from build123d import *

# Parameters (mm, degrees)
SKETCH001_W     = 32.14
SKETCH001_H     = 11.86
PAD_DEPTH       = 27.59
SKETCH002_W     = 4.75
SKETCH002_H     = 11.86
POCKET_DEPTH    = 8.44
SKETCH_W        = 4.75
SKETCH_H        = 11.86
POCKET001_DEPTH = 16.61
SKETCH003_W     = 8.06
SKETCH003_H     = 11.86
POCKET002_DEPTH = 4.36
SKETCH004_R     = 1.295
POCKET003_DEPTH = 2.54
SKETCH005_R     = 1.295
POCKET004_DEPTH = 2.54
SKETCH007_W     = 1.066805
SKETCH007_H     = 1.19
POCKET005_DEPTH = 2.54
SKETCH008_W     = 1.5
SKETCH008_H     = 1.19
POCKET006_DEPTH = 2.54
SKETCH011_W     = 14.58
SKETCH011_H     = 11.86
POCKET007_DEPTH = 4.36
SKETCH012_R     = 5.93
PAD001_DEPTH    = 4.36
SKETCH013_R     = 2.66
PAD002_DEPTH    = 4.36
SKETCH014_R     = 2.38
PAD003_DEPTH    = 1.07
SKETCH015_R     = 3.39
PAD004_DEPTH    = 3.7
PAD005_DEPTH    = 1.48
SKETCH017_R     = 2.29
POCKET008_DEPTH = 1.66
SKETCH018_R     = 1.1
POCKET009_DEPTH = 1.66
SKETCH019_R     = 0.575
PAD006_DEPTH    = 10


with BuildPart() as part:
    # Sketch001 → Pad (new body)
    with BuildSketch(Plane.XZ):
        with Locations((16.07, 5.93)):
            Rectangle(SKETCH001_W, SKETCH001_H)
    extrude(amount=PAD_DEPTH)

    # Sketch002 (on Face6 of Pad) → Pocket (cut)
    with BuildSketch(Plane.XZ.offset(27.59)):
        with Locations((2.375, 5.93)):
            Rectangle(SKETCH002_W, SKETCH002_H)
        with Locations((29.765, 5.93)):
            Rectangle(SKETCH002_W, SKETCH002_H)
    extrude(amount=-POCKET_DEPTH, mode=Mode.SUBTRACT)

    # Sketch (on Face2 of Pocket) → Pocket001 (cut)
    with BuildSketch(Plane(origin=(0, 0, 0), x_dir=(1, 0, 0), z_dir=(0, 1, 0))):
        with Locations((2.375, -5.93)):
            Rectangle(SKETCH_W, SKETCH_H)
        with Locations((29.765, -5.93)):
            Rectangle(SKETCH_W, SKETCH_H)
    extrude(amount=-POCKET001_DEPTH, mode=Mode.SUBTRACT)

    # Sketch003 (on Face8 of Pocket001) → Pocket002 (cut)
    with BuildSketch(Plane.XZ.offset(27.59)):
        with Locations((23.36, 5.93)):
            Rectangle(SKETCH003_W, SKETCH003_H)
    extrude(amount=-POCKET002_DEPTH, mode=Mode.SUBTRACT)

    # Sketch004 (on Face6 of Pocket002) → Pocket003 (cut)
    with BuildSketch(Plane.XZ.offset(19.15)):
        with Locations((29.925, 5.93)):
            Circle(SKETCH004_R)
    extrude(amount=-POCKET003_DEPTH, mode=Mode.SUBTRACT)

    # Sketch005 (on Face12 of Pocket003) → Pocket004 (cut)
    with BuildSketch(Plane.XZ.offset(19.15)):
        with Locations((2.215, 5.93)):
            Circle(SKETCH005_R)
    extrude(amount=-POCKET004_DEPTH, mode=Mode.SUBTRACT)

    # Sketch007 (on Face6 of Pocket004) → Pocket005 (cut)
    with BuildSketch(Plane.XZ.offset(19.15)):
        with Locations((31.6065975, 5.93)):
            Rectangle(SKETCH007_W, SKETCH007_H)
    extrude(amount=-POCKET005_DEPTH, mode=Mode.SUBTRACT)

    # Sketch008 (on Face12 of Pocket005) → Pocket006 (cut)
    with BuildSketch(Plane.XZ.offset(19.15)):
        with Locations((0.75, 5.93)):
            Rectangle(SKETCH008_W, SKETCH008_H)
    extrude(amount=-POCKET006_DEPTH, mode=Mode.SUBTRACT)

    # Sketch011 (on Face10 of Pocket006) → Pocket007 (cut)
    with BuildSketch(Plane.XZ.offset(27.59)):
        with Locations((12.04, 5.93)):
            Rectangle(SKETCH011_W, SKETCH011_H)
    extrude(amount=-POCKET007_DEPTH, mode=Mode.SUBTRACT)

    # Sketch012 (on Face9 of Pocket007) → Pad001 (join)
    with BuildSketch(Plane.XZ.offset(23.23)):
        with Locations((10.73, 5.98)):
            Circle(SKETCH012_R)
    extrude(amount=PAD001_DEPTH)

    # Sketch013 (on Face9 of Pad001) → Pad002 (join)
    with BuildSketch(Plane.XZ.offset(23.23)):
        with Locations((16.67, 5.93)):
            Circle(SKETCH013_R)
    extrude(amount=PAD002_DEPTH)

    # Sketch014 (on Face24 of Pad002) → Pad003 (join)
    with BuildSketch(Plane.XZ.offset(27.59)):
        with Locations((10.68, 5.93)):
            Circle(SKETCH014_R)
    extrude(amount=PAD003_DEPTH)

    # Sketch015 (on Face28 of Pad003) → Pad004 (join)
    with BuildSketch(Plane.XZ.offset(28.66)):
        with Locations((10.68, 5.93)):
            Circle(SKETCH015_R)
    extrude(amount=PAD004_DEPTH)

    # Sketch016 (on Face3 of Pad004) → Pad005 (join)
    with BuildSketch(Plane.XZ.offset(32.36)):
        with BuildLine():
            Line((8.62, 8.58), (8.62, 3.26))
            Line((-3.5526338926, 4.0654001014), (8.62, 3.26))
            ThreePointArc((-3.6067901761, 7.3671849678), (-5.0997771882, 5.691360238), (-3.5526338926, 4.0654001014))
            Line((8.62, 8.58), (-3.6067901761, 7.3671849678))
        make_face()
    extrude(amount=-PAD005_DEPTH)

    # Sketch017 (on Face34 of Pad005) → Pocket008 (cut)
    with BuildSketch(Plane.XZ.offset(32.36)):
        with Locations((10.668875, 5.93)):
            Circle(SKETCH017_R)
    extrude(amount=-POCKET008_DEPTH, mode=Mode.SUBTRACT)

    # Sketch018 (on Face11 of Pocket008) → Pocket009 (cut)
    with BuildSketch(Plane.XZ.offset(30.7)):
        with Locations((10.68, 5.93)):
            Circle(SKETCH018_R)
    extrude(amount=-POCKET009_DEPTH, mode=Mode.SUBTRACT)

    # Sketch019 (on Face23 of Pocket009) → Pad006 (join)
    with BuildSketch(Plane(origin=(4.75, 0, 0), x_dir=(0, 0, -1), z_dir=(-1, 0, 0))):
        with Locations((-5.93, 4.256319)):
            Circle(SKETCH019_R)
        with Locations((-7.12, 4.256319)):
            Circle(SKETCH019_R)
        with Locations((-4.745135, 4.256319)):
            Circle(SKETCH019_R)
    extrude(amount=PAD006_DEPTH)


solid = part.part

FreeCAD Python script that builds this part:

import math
import FreeCAD as App
import Part
import Sketcher
Q = App.Units.Quantity


def add_polygon(sketch, points):
    """Adds a closed chain of lines whose ends are joined by coincident constraints."""
    first, n = sketch.GeometryCount, len(points)
    for a, b in zip(points, points[1:] + points[:1]):
        sketch.addGeometry(Part.LineSegment(App.Vector(*a, 0), App.Vector(*b, 0)), False)
    for i in range(n):
        sketch.addConstraint(Sketcher.Constraint("Coincident", first + i, 2, first + (i + 1) % n, 1))

doc = App.newDocument("Part")
params = doc.addObject("Spreadsheet::Sheet", "Params")
for row, (alias, value) in enumerate([
    ("sketch1_width", "32.14 mm"),
    ("sketch1_height", "11.86 mm"),
    ("pad1_length", "27.59 mm"),
    ("sketch2_width", "4.75 mm"),
    ("sketch2_height", "11.86 mm"),
    ("pocket1_length", "8.44 mm"),
    ("sketch3_width", "4.75 mm"),
    ("sketch3_height", "11.86 mm"),
    ("pocket2_length", "16.61 mm"),
    ("sketch4_width", "8.06 mm"),
    ("sketch4_height", "11.86 mm"),
    ("pocket3_length", "4.36 mm"),
    ("sketch5_diameter", "2.59 mm"),
    ("pocket4_length", "2.54 mm"),
    ("sketch6_diameter", "2.59 mm"),
    ("pocket5_length", "2.54 mm"),
    ("sketch7_height", "1.19 mm"),
    ("pocket6_length", "2.54 mm"),
    ("sketch8_width", "1.5 mm"),
    ("sketch8_height", "1.19 mm"),
    ("pocket7_length", "2.54 mm"),
    ("sketch9_width", "14.58 mm"),
    ("sketch9_height", "11.86 mm"),
    ("pocket8_length", "4.36 mm"),
    ("sketch10_diameter", "11.86 mm"),
    ("pad2_length", "4.36 mm"),
    ("sketch11_diameter", "5.32 mm"),
    ("pad3_length", "4.36 mm"),
    ("sketch12_diameter", "4.76 mm"),
    ("pad4_length", "1.07 mm"),
    ("sketch13_diameter", "6.78 mm"),
    ("pad5_length", "3.7 mm"),
    ("sketch14_height", "5.32 mm"),
    ("pad6_length", "1.48 mm"),
    ("sketch15_diameter", "4.58 mm"),
    ("pocket9_length", "1.66 mm"),
    ("sketch16_diameter", "2.2 mm"),
    ("pocket10_length", "1.66 mm"),
    ("sketch17_diameter", "1.15 mm"),
    ("pad7_length", "10 mm"),
], start=1):
    params.set(f"A{row}", alias)
    params.set(f"B{row}", "=" + value)
    params.setAlias(f"B{row}", alias)

body = doc.addObject("PartDesign::Body", "Body")

sketch1 = body.newObject("Sketcher::SketchObject", "Sketch")
sketch1.AttachmentSupport = (doc.getObject("XZ_Plane"), [""])
sketch1.MapMode = "FlatFace"
add_polygon(sketch1, [(0, 12), (0, 0), (32, 0), (32, 12)])
sketch1.addConstraint([
    Sketcher.Constraint("Vertical", 0),
    Sketcher.Constraint("Horizontal", 1),
    Sketcher.Constraint("Vertical", 2),
    Sketcher.Constraint("Horizontal", 3),
    Sketcher.Constraint("Coincident", 0, 2, -1, 1),
    Sketcher.Constraint("DistanceX", 1, 1, 1, 2, Q("32.14 mm")),
    Sketcher.Constraint("DistanceY", 0, 2, 0, 1, Q("11.86 mm")),
])
sketch1.setExpression("Constraints[9]", "Params.sketch1_width")
sketch1.setExpression("Constraints[10]", "Params.sketch1_height")
pad1 = body.newObject("PartDesign::Pad", "Pad")
pad1.Profile = sketch1
pad1.setExpression("Length", "Params.pad1_length")

sketch2 = body.newObject("Sketcher::SketchObject", "Sketch001")
sketch2.AttachmentSupport = (doc.getObject("XZ_Plane"), [""])
sketch2.MapMode = "FlatFace"
sketch2.AttachmentOffset = App.Placement(App.Vector(0, 0, 27.59), App.Rotation())
add_polygon(sketch2, [(0, 11.9), (0, 0), (4.8, 0), (4.8, 11.9)])
add_polygon(sketch2, [(27.4, 11.9), (27.4, 0), (32.1, 0), (32.1, 11.9)])
sketch2.addConstraint([
    Sketcher.Constraint("Vertical", 0),
    Sketcher.Constraint("Horizontal", 1),
    Sketcher.Constraint("Vertical", 2),
    Sketcher.Constraint("Horizontal", 3),
    Sketcher.Constraint("Vertical", 4),
    Sketcher.Constraint("Horizontal", 5),
    Sketcher.Constraint("Vertical", 6),
    Sketcher.Constraint("Horizontal", 7),
    Sketcher.Constraint("Coincident", 0, 2, -1, 1),
    Sketcher.Constraint("PointOnObject", 4, 2, -1),
    Sketcher.Constraint("Horizontal", 3, 2, 6, 2),
    Sketcher.Constraint("Equal", 3, 5),
    Sketcher.Constraint("DistanceX", 1, 1, 1, 2, Q("4.75 mm")),
    Sketcher.Constraint("DistanceY", 0, 2, 0, 1, Q("11.86 mm")),
    Sketcher.Constraint("DistanceX", -1, 1, 4, 2, Q("27.39 mm")),
])
sketch2.setExpression("Constraints[20]", "Params.sketch2_width")
sketch2.setExpression("Constraints[21]", "Params.sketch2_height")
pocket1 = body.newObject("PartDesign::Pocket", "Pocket")
pocket1.Profile = sketch2
pocket1.setExpression("Length", "Params.pocket1_length")

sketch3 = body.newObject("Sketcher::SketchObject", "Sketch002")
sketch3.AttachmentSupport = (doc.getObject("XZ_Plane"), [""])
sketch3.MapMode = "FlatFace"
add_polygon(sketch3, [(0, 0), (0, 11.9), (4.8, 11.9), (4.8, 0)])
add_polygon(sketch3, [(27.4, 0), (27.4, 11.9), (32.1, 11.9), (32.1, 0)])
sketch3.addConstraint([
    Sketcher.Constraint("Vertical", 0),
    Sketcher.Constraint("Horizontal", 1),
    Sketcher.Constraint("Vertical", 2),
    Sketcher.Constraint("Horizontal", 3),
    Sketcher.Constraint("Vertical", 4),
    Sketcher.Constraint("Horizontal", 5),
    Sketcher.Constraint("Vertical", 6),
    Sketcher.Constraint("Horizontal", 7),
    Sketcher.Constraint("Coincident", 3, 2, -1, 1),
    Sketcher.Constraint("PointOnObject", 6, 2, -1),
    Sketcher.Constraint("Horizontal", 1, 2, 4, 2),
    Sketcher.Constraint("Equal", 3, 5),
    Sketcher.Constraint("DistanceX", 1, 1, 1, 2, Q("4.75 mm")),
    Sketcher.Constraint("DistanceY", 0, 1, 0, 2, Q("11.86 mm")),
    Sketcher.Constraint("DistanceX", -1, 1, 4, 2, Q("27.39 mm")),
])
sketch3.setExpression("Constraints[20]", "Params.sketch3_width")
sketch3.setExpression("Constraints[21]", "Params.sketch3_height")
pocket2 = body.newObject("PartDesign::Pocket", "Pocket001")
pocket2.Profile = sketch3
pocket2.setExpression("Length", "Params.pocket2_length")
pocket2.Reversed = True

sketch4 = body.newObject("Sketcher::SketchObject", "Sketch003")
sketch4.AttachmentSupport = (doc.getObject("XZ_Plane"), [""])
sketch4.MapMode = "FlatFace"
sketch4.AttachmentOffset = App.Placement(App.Vector(0, 0, 27.59), App.Rotation())
add_polygon(sketch4, [(19, 12), (19, 0), (27, 0), (27, 12)])
sketch4.addConstraint([
    Sketcher.Constraint("Vertical", 0),
    Sketcher.Constraint("Horizontal", 1),
    Sketcher.Constraint("Vertical", 2),
    Sketcher.Constraint("Horizontal", 3),
    Sketcher.Constraint("PointOnObject", 0, 2, -1),
    Sketcher.Constraint("DistanceX", 1, 1, 1, 2, Q("8.06 mm")),
    Sketcher.Constraint("DistanceY", 0, 2, 0, 1, Q("11.86 mm")),
    Sketcher.Constraint("DistanceX", -1, 1, 0, 2, Q("19.33 mm")),
])
sketch4.setExpression("Constraints[9]", "Params.sketch4_width")
sketch4.setExpression("Constraints[10]", "Params.sketch4_height")
pocket3 = body.newObject("PartDesign::Pocket", "Pocket002")
pocket3.Profile = sketch4
pocket3.setExpression("Length", "Params.pocket3_length")

sketch5 = body.newObject("Sketcher::SketchObject", "Sketch004")
sketch5.AttachmentSupport = (doc.getObject("XZ_Plane"), [""])
sketch5.MapMode = "FlatFace"
sketch5.AttachmentOffset = App.Placement(App.Vector(0, 0, 19.15), App.Rotation())
sketch5.addGeometry(Part.Circle(App.Vector(29.9, 5.9, 0), App.Vector(0, 0, 1), 1.3), False)
sketch5.addConstraint([
    Sketcher.Constraint("Diameter", 0, Q("2.59 mm")),
    Sketcher.Constraint("DistanceY", -1, 1, 0, 3, Q("5.93 mm")),
    Sketcher.Constraint("DistanceX", -1, 1, 0, 3, Q("29.925 mm")),
])
sketch5.setExpression("Constraints[0]", "Params.sketch5_diameter")
pocket4 = body.newObject("PartDesign::Pocket", "Pocket003")
pocket4.Profile = sketch5
pocket4.setExpression("Length", "Params.pocket4_length")

sketch6 = body.newObject("Sketcher::SketchObject", "Sketch005")
sketch6.AttachmentSupport = (doc.getObject("XZ_Plane"), [""])
sketch6.MapMode = "FlatFace"
sketch6.AttachmentOffset = App.Placement(App.Vector(0, 0, 19.15), App.Rotation())
sketch6.addGeometry(Part.Circle(App.Vector(2.2, 5.9, 0), App.Vector(0, 0, 1), 1.3), False)
sketch6.addConstraint([
    Sketcher.Constraint("Diameter", 0, Q("2.59 mm")),
    Sketcher.Constraint("DistanceY", -1, 1, 0, 3, Q("5.93 mm")),
    Sketcher.Constraint("DistanceX", -1, 1, 0, 3, Q("2.215 mm")),
])
sketch6.setExpression("Constraints[0]", "Params.sketch6_diameter")
pocket5 = body.newObject("PartDesign::Pocket", "Pocket004")
pocket5.Profile = sketch6
pocket5.setExpression("Length", "Params.pocket5_length")

sketch7 = body.newObject("Sketcher::SketchObject", "Sketch006")
sketch7.AttachmentSupport = (doc.getObject("XZ_Plane"), [""])
sketch7.MapMode = "FlatFace"
sketch7.AttachmentOffset = App.Placement(App.Vector(0, 0, 19.15), App.Rotation())
add_polygon(sketch7, [(31.1, 6.5), (31.1, 5.3), (32.1, 5.3), (32.1, 6.5)])
sketch7.addConstraint([
    Sketcher.Constraint("Vertical", 0),
    Sketcher.Constraint("Horizontal", 1),
    Sketcher.Constraint("Vertical", 2),
    Sketcher.Constraint("Horizontal", 3),
    Sketcher.Constraint("DistanceY", 0, 2, 0, 1, Q("1.19 mm")),
    Sketcher.Constraint("DistanceX", -1, 1, 1, 2, Q("32.14 mm")),
    Sketcher.Constraint("DistanceY", -1, 1, 0, 2, Q("5.335 mm")),
    Sketcher.Constraint("DistanceX", 1, 1, 1, 2, Q("1.066805 mm")),
])
sketch7.setExpression("Constraints[8]", "Params.sketch7_height")
pocket6 = body.newObject("PartDesign::Pocket", "Pocket005")
pocket6.Profile = sketch7
pocket6.setExpression("Length", "Params.pocket6_length")

sketch8 = body.newObject("Sketcher::SketchObject", "Sketch007")
sketch8.AttachmentSupport = (doc.getObject("XZ_Plane"), [""])
sketch8.MapMode = "FlatFace"
sketch8.AttachmentOffset = App.Placement(App.Vector(0, 0, 19.15), App.Rotation())
add_polygon(sketch8, [(0, 6.5), (0, 5.3), (1.5, 5.3), (1.5, 6.5)])
sketch8.addConstraint([
    Sketcher.Constraint("Vertical", 0),
    Sketcher.Constraint("Horizontal", 1),
    Sketcher.Constraint("Vertical", 2),
    Sketcher.Constraint("Horizontal", 3),
    Sketcher.Constraint("PointOnObject", 0, 2, -2),
    Sketcher.Constraint("DistanceX", 1, 1, 1, 2, Q("1.5 mm")),
    Sketcher.Constraint("DistanceY", 0, 2, 0, 1, Q("1.19 mm")),
    Sketcher.Constraint("DistanceY", -1, 1, 0, 2, Q("5.335 mm")),
])
sketch8.setExpression("Constraints[9]", "Params.sketch8_width")
sketch8.setExpression("Constraints[10]", "Params.sketch8_height")
pocket7 = body.newObject("PartDesign::Pocket", "Pocket006")
pocket7.Profile = sketch8
pocket7.setExpression("Length", "Params.pocket7_length")

sketch9 = body.newObject("Sketcher::SketchObject", "Sketch008")
sketch9.AttachmentSupport = (doc.getObject("XZ_Plane"), [""])
sketch9.MapMode = "FlatFace"
sketch9.AttachmentOffset = App.Placement(App.Vector(0, 0, 27.59), App.Rotation())
add_polygon(sketch9, [(5, 12), (5, 0), (19, 0), (19, 12)])
sketch9.addConstraint([
    Sketcher.Constraint("Vertical", 0),
    Sketcher.Constraint("Horizontal", 1),
    Sketcher.Constraint("Vertical", 2),
    Sketcher.Constraint("Horizontal", 3),
    Sketcher.Constraint("PointOnObject", 0, 2, -1),
    Sketcher.Constraint("DistanceX", 1, 1, 1, 2, Q("14.58 mm")),
    Sketcher.Constraint("DistanceY", 0, 2, 0, 1, Q("11.86 mm")),
    Sketcher.Constraint("DistanceX", -1, 1, 0, 2, Q("4.75 mm")),
])
sketch9.setExpression("Constraints[9]", "Params.sketch9_width")
sketch9.setExpression("Constraints[10]", "Params.sketch9_height")
pocket8 = body.newObject("PartDesign::Pocket", "Pocket007")
pocket8.Profile = sketch9
pocket8.setExpression("Length", "Params.pocket8_length")

sketch10 = body.newObject("Sketcher::SketchObject", "Sketch009")
sketch10.AttachmentSupport = (doc.getObject("XZ_Plane"), [""])
sketch10.MapMode = "FlatFace"
sketch10.AttachmentOffset = App.Placement(App.Vector(0, 0, 23.23), App.Rotation())
sketch10.addGeometry(Part.Circle(App.Vector(11, 6, 0), App.Vector(0, 0, 1), 6), False)
sketch10.addConstraint([
    Sketcher.Constraint("Diameter", 0, Q("11.86 mm")),
    Sketcher.Constraint("DistanceX", -1, 1, 0, 3, Q("10.73 mm")),
    Sketcher.Constraint("DistanceY", -1, 1, 0, 3, Q("5.98 mm")),
])
sketch10.setExpression("Constraints[0]", "Params.sketch10_diameter")
pad2 = body.newObject("PartDesign::Pad", "Pad001")
pad2.Profile = sketch10
pad2.setExpression("Length", "Params.pad2_length")

sketch11 = body.newObject("Sketcher::SketchObject", "Sketch010")
sketch11.AttachmentSupport = (doc.getObject("XZ_Plane"), [""])
sketch11.MapMode = "FlatFace"
sketch11.AttachmentOffset = App.Placement(App.Vector(0, 0, 23.23), App.Rotation())
sketch11.addGeometry(Part.Circle(App.Vector(16.7, 5.9, 0), App.Vector(0, 0, 1), 2.7), False)
sketch11.addConstraint([
    Sketcher.Constraint("Diameter", 0, Q("5.32 mm")),
    Sketcher.Constraint("DistanceX", -1, 1, 0, 3, Q("16.67 mm")),
    Sketcher.Constraint("DistanceY", -1, 1, 0, 3, Q("5.93 mm")),
])
sketch11.setExpression("Constraints[0]", "Params.sketch11_diameter")
pad3 = body.newObject("PartDesign::Pad", "Pad002")
pad3.Profile = sketch11
pad3.setExpression("Length", "Params.pad3_length")

sketch12 = body.newObject("Sketcher::SketchObject", "Sketch011")
sketch12.AttachmentSupport = (doc.getObject("XZ_Plane"), [""])
sketch12.MapMode = "FlatFace"
sketch12.AttachmentOffset = App.Placement(App.Vector(0, 0, 27.59), App.Rotation())
sketch12.addGeometry(Part.Circle(App.Vector(10.7, 5.9, 0), App.Vector(0, 0, 1), 2.4), False)
sketch12.addConstraint([
    Sketcher.Constraint("Diameter", 0, Q("4.76 mm")),
    Sketcher.Constraint("DistanceX", -1, 1, 0, 3, Q("10.68 mm")),
    Sketcher.Constraint("DistanceY", -1, 1, 0, 3, Q("5.93 mm")),
])
sketch12.setExpression("Constraints[0]", "Params.sketch12_diameter")
pad4 = body.newObject("PartDesign::Pad", "Pad003")
pad4.Profile = sketch12
pad4.setExpression("Length", "Params.pad4_length")

sketch13 = body.newObject("Sketcher::SketchObject", "Sketch012")
sketch13.AttachmentSupport = (doc.getObject("XZ_Plane"), [""])
sketch13.MapMode = "FlatFace"
sketch13.AttachmentOffset = App.Placement(App.Vector(0, 0, 28.66), App.Rotation())
sketch13.addGeometry(Part.Circle(App.Vector(10.7, 5.9, 0), App.Vector(0, 0, 1), 3.4), False)
sketch13.addConstraint([
    Sketcher.Constraint("Diameter", 0, Q("6.78 mm")),
    Sketcher.Constraint("DistanceX", -1, 1, 0, 3, Q("10.68 mm")),
    Sketcher.Constraint("DistanceY", -1, 1, 0, 3, Q("5.93 mm")),
])
sketch13.setExpression("Constraints[0]", "Params.sketch13_diameter")
pad5 = body.newObject("PartDesign::Pad", "Pad004")
pad5.Profile = sketch13
pad5.setExpression("Length", "Params.pad5_length")

sketch14 = body.newObject("Sketcher::SketchObject", "Sketch013")
sketch14.AttachmentSupport = (doc.getObject("XZ_Plane"), [""])
sketch14.MapMode = "FlatFace"
sketch14.AttachmentOffset = App.Placement(App.Vector(0, 0, 32.36), App.Rotation())
sketch14.addGeometry([
    Part.LineSegment(App.Vector(8.6, 3.3, 0), App.Vector(8.6, 8.6, 0)),
    Part.LineSegment(App.Vector(8.6, 8.6, 0), App.Vector(-3.6, 7.4, 0)),
    Part.ArcOfCircle(Part.Circle(App.Vector(-3.4, 5.7, 0), App.Vector(0, 0, 1), 1.7), math.radians(96), math.radians(266)),
    Part.LineSegment(App.Vector(-3.6, 4.1, 0), App.Vector(8.6, 3.3, 0)),
], False)
sketch14.addConstraint([
    Sketcher.Constraint("Coincident", 0, 2, 1, 1),
    Sketcher.Constraint("Tangent", 1, 2, 2, 1),
    Sketcher.Constraint("Tangent", 2, 2, 3, 1),
    Sketcher.Constraint("Coincident", 3, 2, 0, 1),
    Sketcher.Constraint("Vertical", 0),
    Sketcher.Constraint("DistanceY", 0, 1, 0, 2, Q("5.32 mm")),
    Sketcher.Constraint("DistanceX", -1, 1, 0, 2, Q("8.62 mm")),
    Sketcher.Constraint("DistanceY", -1, 1, 0, 2, Q("8.58 mm")),
    Sketcher.Constraint("Radius", 2, Q("1.656745 mm")),
    Sketcher.Constraint("DistanceY", -1, 1, 2, 2, Q("4.0654 mm")),
    Sketcher.Constraint("Distance", 3, Q("12.199249 mm")),
])
sketch14.setExpression("Constraints[5]", "Params.sketch14_height")
pad6 = body.newObject("PartDesign::Pad", "Pad005")
pad6.Profile = sketch14
pad6.setExpression("Length", "Params.pad6_length")
pad6.Reversed = True

sketch15 = body.newObject("Sketcher::SketchObject", "Sketch014")
sketch15.AttachmentSupport = (doc.getObject("XZ_Plane"), [""])
sketch15.MapMode = "FlatFace"
sketch15.AttachmentOffset = App.Placement(App.Vector(0, 0, 32.36), App.Rotation())
sketch15.addGeometry(Part.Circle(App.Vector(10.7, 5.9, 0), App.Vector(0, 0, 1), 2.3), False)
sketch15.addConstraint([
    Sketcher.Constraint("Diameter", 0, Q("4.58 mm")),
    Sketcher.Constraint("DistanceY", -1, 1, 0, 3, Q("5.93 mm")),
    Sketcher.Constraint("DistanceX", -1, 1, 0, 3, Q("10.668875 mm")),
])
sketch15.setExpression("Constraints[0]", "Params.sketch15_diameter")
pocket9 = body.newObject("PartDesign::Pocket", "Pocket008")
pocket9.Profile = sketch15
pocket9.setExpression("Length", "Params.pocket9_length")

sketch16 = body.newObject("Sketcher::SketchObject", "Sketch015")
sketch16.AttachmentSupport = (doc.getObject("XZ_Plane"), [""])
sketch16.MapMode = "FlatFace"
sketch16.AttachmentOffset = App.Placement(App.Vector(0, 0, 30.7), App.Rotation())
sketch16.addGeometry(Part.Circle(App.Vector(10.7, 5.9, 0), App.Vector(0, 0, 1), 1.1), False)
sketch16.addConstraint([
    Sketcher.Constraint("Diameter", 0, Q("2.2 mm")),
    Sketcher.Constraint("DistanceX", -1, 1, 0, 3, Q("10.68 mm")),
    Sketcher.Constraint("DistanceY", -1, 1, 0, 3, Q("5.93 mm")),
])
sketch16.setExpression("Constraints[0]", "Params.sketch16_diameter")
pocket10 = body.newObject("PartDesign::Pocket", "Pocket009")
pocket10.Profile = sketch16
pocket10.setExpression("Length", "Params.pocket10_length")

sketch17 = body.newObject("Sketcher::SketchObject", "Sketch016")
sketch17.AttachmentSupport = (doc.getObject("YZ_Plane"), [""])
sketch17.MapMode = "FlatFace"
sketch17.AttachmentOffset = App.Placement(App.Vector(0, 0, 4.75), App.Rotation())
sketch17.addGeometry([
    Part.Circle(App.Vector(-4.3, 5.9, 0), App.Vector(0, 0, 1), 0.6),
    Part.Circle(App.Vector(-4.3, 7.1, 0), App.Vector(0, 0, 1), 0.6),
    Part.Circle(App.Vector(-4.3, 4.7, 0), App.Vector(0, 0, 1), 0.6),
], False)
sketch17.addConstraint([
    Sketcher.Constraint("Equal", 0, 1),
    Sketcher.Constraint("Equal", 1, 2),
    Sketcher.Constraint("Vertical", 0, 3, 1, 3),
    Sketcher.Constraint("Vertical", 1, 3, 2, 3),
    Sketcher.Constraint("Diameter", 0, Q("1.15 mm")),
    Sketcher.Constraint("DistanceY", -1, 1, 0, 3, Q("5.93 mm")),
    Sketcher.Constraint("DistanceY", -1, 1, 1, 3, Q("7.12 mm")),
    Sketcher.Constraint("DistanceX", 0, 3, -1, 1, Q("4.256319 mm")),
    Sketcher.Constraint("DistanceY", -1, 1, 2, 3, Q("4.745135 mm")),
])
sketch17.setExpression("Constraints[4]", "Params.sketch17_diameter")
pad7 = body.newObject("PartDesign::Pad", "Pad006")
pad7.Profile = sketch17
pad7.setExpression("Length", "Params.pad7_length")
pad7.Reversed = True

doc.recompute()
